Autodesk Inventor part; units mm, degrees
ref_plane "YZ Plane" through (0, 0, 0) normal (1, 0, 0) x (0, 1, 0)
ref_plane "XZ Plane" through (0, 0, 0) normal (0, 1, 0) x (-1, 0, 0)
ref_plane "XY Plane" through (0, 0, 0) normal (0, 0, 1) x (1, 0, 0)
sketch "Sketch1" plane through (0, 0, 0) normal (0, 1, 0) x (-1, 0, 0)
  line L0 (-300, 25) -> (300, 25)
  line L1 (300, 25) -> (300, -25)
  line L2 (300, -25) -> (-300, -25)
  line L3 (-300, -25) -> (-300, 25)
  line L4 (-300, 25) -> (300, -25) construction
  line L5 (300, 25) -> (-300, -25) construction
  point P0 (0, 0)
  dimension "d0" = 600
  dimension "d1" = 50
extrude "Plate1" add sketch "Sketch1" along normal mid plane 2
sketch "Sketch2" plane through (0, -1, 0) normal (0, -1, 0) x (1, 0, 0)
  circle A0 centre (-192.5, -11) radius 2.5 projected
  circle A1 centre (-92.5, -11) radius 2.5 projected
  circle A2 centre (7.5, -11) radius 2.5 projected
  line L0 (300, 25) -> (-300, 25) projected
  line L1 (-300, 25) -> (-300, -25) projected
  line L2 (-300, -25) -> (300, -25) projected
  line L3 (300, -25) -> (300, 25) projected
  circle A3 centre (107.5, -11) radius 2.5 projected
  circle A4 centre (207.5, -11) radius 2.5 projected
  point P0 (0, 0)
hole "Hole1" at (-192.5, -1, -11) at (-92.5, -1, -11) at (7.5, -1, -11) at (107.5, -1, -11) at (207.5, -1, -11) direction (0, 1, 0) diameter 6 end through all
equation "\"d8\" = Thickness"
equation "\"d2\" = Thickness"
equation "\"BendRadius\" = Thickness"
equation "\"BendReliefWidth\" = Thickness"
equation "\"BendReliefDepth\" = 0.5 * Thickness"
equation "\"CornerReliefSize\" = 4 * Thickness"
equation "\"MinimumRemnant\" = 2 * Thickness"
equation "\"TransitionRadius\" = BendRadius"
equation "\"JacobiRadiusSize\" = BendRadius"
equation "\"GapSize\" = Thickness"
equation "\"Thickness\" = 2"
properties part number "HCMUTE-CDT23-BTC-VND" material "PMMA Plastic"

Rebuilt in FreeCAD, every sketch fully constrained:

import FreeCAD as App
import Part
import Sketcher


def add_polygon(sketch, points):
    """Adds a closed chain of lines whose ends are joined by coincident constraints."""
    first, n = sketch.GeometryCount, len(points)
    for a, b in zip(points, points[1:] + points[:1]):
        sketch.addGeometry(Part.LineSegment(App.Vector(*a, 0), App.Vector(*b, 0)), False)
    for i in range(n):
        sketch.addConstraint(Sketcher.Constraint("Coincident", first + i, 2, first + (i + 1) % n, 1))

doc = App.newDocument("Part")
body = doc.addObject("PartDesign::Body", "Body")

# Sketch on XZ plane
sketch1 = body.newObject("Sketcher::SketchObject", "Sketch")
sketch1.AttachmentSupport = (doc.getObject("XZ_Plane"), [""])
sketch1.MapMode = "FlatFace"
add_polygon(sketch1, [(-300, 25), (300, 25), (300, -25), (-300, -25)])  # lines 0-3
sketch1.addConstraint([
    Sketcher.Constraint("Horizontal", 0),
    Sketcher.Constraint("Vertical", 1),
    Sketcher.Constraint("Horizontal", 2),
    Sketcher.Constraint("Vertical", 3),
    Sketcher.Constraint("Symmetric", 0, 2, 2, 2, -1, 1),
    Sketcher.Constraint("DistanceX", 0, 1, 0, 2, 600.0),
    Sketcher.Constraint("DistanceY", 1, 2, 1, 1, 50.0),
])
pad1 = body.newObject("PartDesign::Pad", "Pad")
pad1.Profile = sketch1
pad1.Length = 2
pad1.Midplane = True

# Sketch on XZ plane
sketch2 = body.newObject("Sketcher::SketchObject", "Sketch001")
sketch2.AttachmentSupport = (doc.getObject("XZ_Plane"), [""])
sketch2.MapMode = "FlatFace"
sketch2.AttachmentOffset = App.Placement(App.Vector(0, 0, 1), App.Rotation())
sketch2.addGeometry([
    Part.Circle(App.Vector(-192.5, -11, 0), App.Vector(0, 0, 1), 3),  # 0
    Part.Circle(App.Vector(-92.5, -11, 0), App.Vector(0, 0, 1), 3),  # 1
    Part.Circle(App.Vector(7.5, -11, 0), App.Vector(0, 0, 1), 3),  # 2
    Part.Circle(App.Vector(107.5, -11, 0), App.Vector(0, 0, 1), 3),  # 3
    Part.Circle(App.Vector(207.5, -11, 0), App.Vector(0, 0, 1), 3),  # 4
], False)
sketch2.addConstraint([
    Sketcher.Constraint("Equal", 0, 1),
    Sketcher.Constraint("Equal", 1, 2),
    Sketcher.Constraint("Equal", 2, 3),
    Sketcher.Constraint("Equal", 3, 4),
    Sketcher.Constraint("Horizontal", 0, 3, 1, 3),
    Sketcher.Constraint("Horizontal", 1, 3, 2, 3),
    Sketcher.Constraint("Horizontal", 2, 3, 3, 3),
    Sketcher.Constraint("Horizontal", 3, 3, 4, 3),
    Sketcher.Constraint("Diameter", 0, 6.0),
    Sketcher.Constraint("DistanceY", 0, 3, -1, 1, 11.0),
    Sketcher.Constraint("DistanceX", 0, 3, 1, 3, 100.0),
    Sketcher.Constraint("DistanceX", 1, 3, 2, 3, 100.0),
    Sketcher.Constraint("DistanceX", 2, 3, 3, 3, 100.0),
    Sketcher.Constraint("DistanceX", 3, 3, 4, 3, 100.0),
    Sketcher.Constraint("DistanceX", 0, 3, -1, 1, 192.5),
])
doc.recompute()
hole = body.newObject("PartDesign::Hole", "Hole")
hole.Profile = sketch2
hole.ThreadType = "None"
hole.Diameter = 6
hole.DepthType = "ThroughAll"

doc.recompute()
